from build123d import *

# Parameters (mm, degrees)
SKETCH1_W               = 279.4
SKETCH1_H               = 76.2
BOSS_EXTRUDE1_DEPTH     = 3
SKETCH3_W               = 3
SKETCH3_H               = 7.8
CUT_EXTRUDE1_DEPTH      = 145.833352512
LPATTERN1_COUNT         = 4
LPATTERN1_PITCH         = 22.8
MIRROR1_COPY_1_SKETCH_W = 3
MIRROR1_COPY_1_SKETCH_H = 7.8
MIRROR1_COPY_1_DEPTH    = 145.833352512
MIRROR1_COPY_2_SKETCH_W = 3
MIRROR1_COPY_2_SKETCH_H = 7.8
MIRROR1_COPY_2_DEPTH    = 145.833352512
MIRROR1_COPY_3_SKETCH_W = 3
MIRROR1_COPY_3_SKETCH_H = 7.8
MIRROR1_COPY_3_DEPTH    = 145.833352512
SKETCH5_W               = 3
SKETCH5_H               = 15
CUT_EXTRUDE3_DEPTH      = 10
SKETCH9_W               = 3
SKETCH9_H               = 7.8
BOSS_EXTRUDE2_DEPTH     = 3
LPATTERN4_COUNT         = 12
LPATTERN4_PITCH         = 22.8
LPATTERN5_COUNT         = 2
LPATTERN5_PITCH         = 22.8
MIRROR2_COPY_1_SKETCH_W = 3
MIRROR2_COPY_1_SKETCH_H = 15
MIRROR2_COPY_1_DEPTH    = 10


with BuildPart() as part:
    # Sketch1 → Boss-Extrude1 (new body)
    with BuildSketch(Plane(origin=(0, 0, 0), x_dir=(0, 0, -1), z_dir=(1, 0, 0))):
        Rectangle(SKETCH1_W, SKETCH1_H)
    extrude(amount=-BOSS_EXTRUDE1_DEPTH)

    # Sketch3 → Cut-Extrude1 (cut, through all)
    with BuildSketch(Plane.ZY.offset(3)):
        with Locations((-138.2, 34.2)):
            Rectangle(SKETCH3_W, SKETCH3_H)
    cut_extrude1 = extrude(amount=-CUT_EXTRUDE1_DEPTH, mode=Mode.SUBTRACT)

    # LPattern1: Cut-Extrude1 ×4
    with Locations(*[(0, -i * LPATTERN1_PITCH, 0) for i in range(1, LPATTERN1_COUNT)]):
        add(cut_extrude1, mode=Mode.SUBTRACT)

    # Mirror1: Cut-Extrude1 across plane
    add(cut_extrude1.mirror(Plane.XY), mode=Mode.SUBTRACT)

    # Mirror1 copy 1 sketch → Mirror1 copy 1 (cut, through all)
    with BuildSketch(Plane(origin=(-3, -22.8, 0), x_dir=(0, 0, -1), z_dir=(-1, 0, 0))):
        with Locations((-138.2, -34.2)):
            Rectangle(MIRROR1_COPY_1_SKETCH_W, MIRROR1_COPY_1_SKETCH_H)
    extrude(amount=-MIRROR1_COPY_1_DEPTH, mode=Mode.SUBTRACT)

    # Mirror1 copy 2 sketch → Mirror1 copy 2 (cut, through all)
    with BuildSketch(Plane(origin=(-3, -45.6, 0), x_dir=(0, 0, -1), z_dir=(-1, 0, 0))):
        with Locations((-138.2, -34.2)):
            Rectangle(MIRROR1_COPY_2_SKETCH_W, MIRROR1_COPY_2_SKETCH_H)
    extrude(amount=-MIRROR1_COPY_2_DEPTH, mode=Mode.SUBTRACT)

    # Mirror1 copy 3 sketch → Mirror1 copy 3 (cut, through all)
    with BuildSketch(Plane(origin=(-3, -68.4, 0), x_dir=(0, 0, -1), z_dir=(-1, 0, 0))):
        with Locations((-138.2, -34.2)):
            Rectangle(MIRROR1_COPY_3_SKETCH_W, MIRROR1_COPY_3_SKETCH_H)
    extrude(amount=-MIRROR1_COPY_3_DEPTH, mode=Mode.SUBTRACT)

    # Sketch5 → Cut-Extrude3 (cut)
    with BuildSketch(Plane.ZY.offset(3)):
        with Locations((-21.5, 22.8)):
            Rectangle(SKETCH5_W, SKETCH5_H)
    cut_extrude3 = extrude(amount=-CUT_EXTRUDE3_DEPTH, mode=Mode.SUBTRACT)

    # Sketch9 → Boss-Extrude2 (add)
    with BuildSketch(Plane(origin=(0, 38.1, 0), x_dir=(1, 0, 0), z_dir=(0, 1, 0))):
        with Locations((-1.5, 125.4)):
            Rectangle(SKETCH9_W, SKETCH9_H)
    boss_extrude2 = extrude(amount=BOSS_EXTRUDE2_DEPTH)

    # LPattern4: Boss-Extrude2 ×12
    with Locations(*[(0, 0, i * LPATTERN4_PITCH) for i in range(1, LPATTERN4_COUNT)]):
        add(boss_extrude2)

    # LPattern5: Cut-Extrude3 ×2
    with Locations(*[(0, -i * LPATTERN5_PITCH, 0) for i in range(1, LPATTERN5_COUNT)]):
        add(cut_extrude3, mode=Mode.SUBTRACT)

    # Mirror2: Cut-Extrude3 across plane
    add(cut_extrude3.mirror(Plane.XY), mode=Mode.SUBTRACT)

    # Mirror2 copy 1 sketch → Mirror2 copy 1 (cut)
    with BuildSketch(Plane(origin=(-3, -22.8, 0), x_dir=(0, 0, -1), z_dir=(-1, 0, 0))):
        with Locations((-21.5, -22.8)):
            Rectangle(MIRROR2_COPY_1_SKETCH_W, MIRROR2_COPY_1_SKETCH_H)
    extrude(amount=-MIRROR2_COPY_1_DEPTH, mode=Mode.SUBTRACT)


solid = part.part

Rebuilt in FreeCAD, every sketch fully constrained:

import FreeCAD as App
import Part
import Sketcher

V = App.Vector


def add_polygon(sketch, points):
    """Adds a closed chain of lines whose ends are joined by coincident constraints."""
    first, n = sketch.GeometryCount, len(points)
    for a, b in zip(points, points[1:] + points[:1]):
        sketch.addGeometry(Part.LineSegment(App.Vector(*a, 0), App.Vector(*b, 0)), False)
    for i in range(n):
        sketch.addConstraint(Sketcher.Constraint("Coincident", first + i, 2, first + (i + 1) % n, 1))

doc = App.newDocument("Part")
params = doc.addObject("Spreadsheet::Sheet", "Params")
for row, (alias, value) in enumerate([
    ("sketch1_width", "76.2 mm"),
    ("sketch1_height", "279.4 mm"),
    ("pad1_length", "3 mm"),
    ("sketch2_height", "3 mm"),
    ("sketch2_width", "7.8 mm"),
    ("linearpattern_pitch", "22.8 mm"),
    ("sketch3_height", "3 mm"),
    ("sketch3_width", "7.8 mm"),
    ("sketch4_height", "3 mm"),
    ("sketch4_width", "7.8 mm"),
    ("sketch5_height", "3 mm"),
    ("sketch5_width", "7.8 mm"),
    ("sketch6_width", "15 mm"),
    ("sketch6_height", "3 mm"),
    ("pocket5_length", "10 mm"),
    ("sketch7_width", "3 mm"),
    ("sketch7_height", "7.8 mm"),
    ("pad2_length", "3 mm"),
    ("linearpattern2_pitch", "22.8 mm"),
    ("linearpattern3_pitch", "22.8 mm"),
    ("sketch8_width", "15 mm"),
    ("sketch8_height", "3 mm"),
    ("pocket6_length", "10 mm"),
], start=1):
    params.set(f"A{row}", alias)
    params.set(f"B{row}", "=" + value)
    params.setAlias(f"B{row}", alias)

body = doc.addObject("PartDesign::Body", "Body")

# Sketch on YZ plane
sketch1 = doc.addObject("Sketcher::SketchObject", "Sketch")
body.addObject(sketch1)
sketch1.AttachmentSupport = (doc.YZ_Plane, [""])
sketch1.MapMode = "FlatFace"
add_polygon(sketch1, [(38, 140), (-38, 140), (-38, -140), (38, -140)])  # lines 0-3
sketch1.addConstraint(Sketcher.Constraint("Horizontal", 0))
sketch1.addConstraint(Sketcher.Constraint("Vertical", 1))
sketch1.addConstraint(Sketcher.Constraint("Horizontal", 2))
sketch1.addConstraint(Sketcher.Constraint("Vertical", 3))
sketch1.addConstraint(Sketcher.Constraint("Symmetric", 0, 2, 2, 2, -1, 1))
sketch1.addConstraint(Sketcher.Constraint("DistanceX", 0, 2, 0, 1, 76.2))
sketch1.addConstraint(Sketcher.Constraint("DistanceY", 1, 2, 1, 1, 279.4))
sketch1.setExpression("Constraints[9]", "Params.sketch1_width")
sketch1.setExpression("Constraints[10]", "Params.sketch1_height")
pad1 = doc.addObject("PartDesign::Pad", "Pad")
body.addObject(pad1)
pad1.Profile = sketch1
pad1.setExpression("Length", "Params.pad1_length")
pad1.Reversed = True

# Sketch on YZ plane
sketch2 = doc.addObject("Sketcher::SketchObject", "Sketch001")
body.addObject(sketch2)
sketch2.AttachmentSupport = (doc.YZ_Plane, [""])
sketch2.MapMode = "FlatFace"
sketch2.AttachmentOffset = App.Placement(V(0, 0, -3), App.Rotation())
add_polygon(sketch2, [(38.1, -139.7), (30.3, -139.7), (30.3, -136.7), (38.1, -136.7)])  # lines 0-3
sketch2.addConstraint(Sketcher.Constraint("Horizontal", 0))
sketch2.addConstraint(Sketcher.Constraint("Vertical", 1))
sketch2.addConstraint(Sketcher.Constraint("Horizontal", 2))
sketch2.addConstraint(Sketcher.Constraint("Vertical", 3))
sketch2.addConstraint(Sketcher.Constraint("DistanceY", 1, 1, 1, 2, 3.0))
sketch2.addConstraint(Sketcher.Constraint("DistanceX", 0, 2, 0, 1, 7.8))
sketch2.addConstraint(Sketcher.Constraint("DistanceX", -1, 1, 0, 2, 30.3))
sketch2.addConstraint(Sketcher.Constraint("DistanceY", 0, 2, -1, 1, 139.7))
sketch2.setExpression("Constraints[8]", "Params.sketch2_height")
sketch2.setExpression("Constraints[9]", "Params.sketch2_width")
pocket1 = doc.addObject("PartDesign::Pocket", "Pocket")
body.addObject(pocket1)
pocket1.Profile = sketch2
pocket1.Type = "ThroughAll"
pocket1.Reversed = True
doc.recompute()

linearpattern = doc.addObject("PartDesign::LinearPattern", "LinearPattern")
body.addObject(linearpattern)
linearpattern.Originals = [pocket1]
linearpattern.Direction = (doc.Y_Axis, [""])
linearpattern.Mode = "offset"
linearpattern.setExpression("Offset", "Params.linearpattern_pitch")
linearpattern.Occurrences = 4
linearpattern.Reversed = True
body.Tip = linearpattern
doc.recompute()

mirrored = doc.addObject("PartDesign::Mirrored", "Mirrored")
body.addObject(mirrored)
mirrored.Originals = [pocket1]
mirrored.MirrorPlane = (doc.XY_Plane, [""])
body.Tip = mirrored

# Sketch on YZ plane
sketch3 = doc.addObject("Sketcher::SketchObject", "Sketch002")
body.addObject(sketch3)
sketch3.AttachmentSupport = (doc.YZ_Plane, [""])
sketch3.MapMode = "FlatFace"
sketch3.AttachmentOffset = App.Placement(V(0, 0, -3), App.Rotation())
add_polygon(sketch3, [(7.5, 139.7), (15.3, 139.7), (15.3, 136.7), (7.5, 136.7)])  # lines 0-3
sketch3.addConstraint(Sketcher.Constraint("Horizontal", 0))
sketch3.addConstraint(Sketcher.Constraint("Vertical", 1))
sketch3.addConstraint(Sketcher.Constraint("Horizontal", 2))
sketch3.addConstraint(Sketcher.Constraint("Vertical", 3))
sketch3.addConstraint(Sketcher.Constraint("DistanceY", 1, 2, 1, 1, 3.0))
sketch3.addConstraint(Sketcher.Constraint("DistanceX", 0, 1, 0, 2, 7.8))
sketch3.addConstraint(Sketcher.Constraint("DistanceX", -1, 1, 0, 2, 15.3))
sketch3.addConstraint(Sketcher.Constraint("DistanceY", -1, 1, 0, 2, 139.7))
sketch3.setExpression("Constraints[8]", "Params.sketch3_height")
sketch3.setExpression("Constraints[9]", "Params.sketch3_width")
pocket2 = doc.addObject("PartDesign::Pocket", "Pocket001")
body.addObject(pocket2)
pocket2.Profile = sketch3
pocket2.Type = "ThroughAll"
pocket2.Reversed = True

# Sketch on YZ plane
sketch4 = doc.addObject("Sketcher::SketchObject", "Sketch003")
body.addObject(sketch4)
sketch4.AttachmentSupport = (doc.YZ_Plane, [""])
sketch4.MapMode = "FlatFace"
sketch4.AttachmentOffset = App.Placement(V(0, 0, -3), App.Rotation())
add_polygon(sketch4, [(-15.3, 139.7), (-7.5, 139.7), (-7.5, 136.7), (-15.3, 136.7)])  # lines 0-3
sketch4.addConstraint(Sketcher.Constraint("Horizontal", 0))
sketch4.addConstraint(Sketcher.Constraint("Vertical", 1))
sketch4.addConstraint(Sketcher.Constraint("Horizontal", 2))
sketch4.addConstraint(Sketcher.Constraint("Vertical", 3))
sketch4.addConstraint(Sketcher.Constraint("DistanceY", 1, 2, 1, 1, 3.0))
sketch4.addConstraint(Sketcher.Constraint("DistanceX", 0, 1, 0, 2, 7.8))
sketch4.addConstraint(Sketcher.Constraint("DistanceX", 0, 2, -1, 1, 7.5))
sketch4.addConstraint(Sketcher.Constraint("DistanceY", -1, 1, 0, 2, 139.7))
sketch4.setExpression("Constraints[8]", "Params.sketch4_height")
sketch4.setExpression("Constraints[9]", "Params.sketch4_width")
pocket3 = doc.addObject("PartDesign::Pocket", "Pocket002")
body.addObject(pocket3)
pocket3.Profile = sketch4
pocket3.Type = "ThroughAll"
pocket3.Reversed = True

# Sketch on YZ plane
sketch5 = doc.addObject("Sketcher::SketchObject", "Sketch004")
body.addObject(sketch5)
sketch5.AttachmentSupport = (doc.YZ_Plane, [""])
sketch5.MapMode = "FlatFace"
sketch5.AttachmentOffset = App.Placement(V(0, 0, -3), App.Rotation())
add_polygon(sketch5, [(-38.1, 139.7), (-30.3, 139.7), (-30.3, 136.7), (-38.1, 136.7)])  # lines 0-3
sketch5.addConstraint(Sketcher.Constraint("Horizontal", 0))
sketch5.addConstraint(Sketcher.Constraint("Vertical", 1))
sketch5.addConstraint(Sketcher.Constraint("Horizontal", 2))
sketch5.addConstraint(Sketcher.Constraint("Vertical", 3))
sketch5.addConstraint(Sketcher.Constraint("DistanceY", 1, 2, 1, 1, 3.0))
sketch5.addConstraint(Sketcher.Constraint("DistanceX", 0, 1, 0, 2, 7.8))
sketch5.addConstraint(Sketcher.Constraint("DistanceX", 0, 2, -1, 1, 30.3))
sketch5.addConstraint(Sketcher.Constraint("DistanceY", -1, 1, 0, 2, 139.7))
sketch5.setExpression("Constraints[8]", "Params.sketch5_height")
sketch5.setExpression("Constraints[9]", "Params.sketch5_width")
pocket4 = doc.addObject("PartDesign::Pocket", "Pocket003")
body.addObject(pocket4)
pocket4.Profile = sketch5
pocket4.Type = "ThroughAll"
pocket4.Reversed = True

# Sketch on YZ plane
sketch6 = doc.addObject("Sketcher::SketchObject", "Sketch005")
body.addObject(sketch6)
sketch6.AttachmentSupport = (doc.YZ_Plane, [""])
sketch6.MapMode = "FlatFace"
sketch6.AttachmentOffset = App.Placement(V(0, 0, -3), App.Rotation())
add_polygon(sketch6, [(30.3, -23), (15.3, -23), (15.3, -20), (30.3, -20)])  # lines 0-3
sketch6.addConstraint(Sketcher.Constraint("Horizontal", 0))
sketch6.addConstraint(Sketcher.Constraint("Vertical", 1))
sketch6.addConstraint(Sketcher.Constraint("Horizontal", 2))
sketch6.addConstraint(Sketcher.Constraint("Vertical", 3))
sketch6.addConstraint(Sketcher.Constraint("DistanceX", 0, 2, 0, 1, 15.0))
sketch6.addConstraint(Sketcher.Constraint("DistanceY", 1, 1, 1, 2, 3.0))
sketch6.addConstraint(Sketcher.Constraint("DistanceY", 0, 2, -1, 1, 23.0))
sketch6.addConstraint(Sketcher.Constraint("DistanceX", -1, 1, 0, 2, 15.3))
sketch6.setExpression("Constraints[8]", "Params.sketch6_width")
sketch6.setExpression("Constraints[9]", "Params.sketch6_height")
pocket5 = doc.addObject("PartDesign::Pocket", "Pocket004")
body.addObject(pocket5)
pocket5.Profile = sketch6
pocket5.setExpression("Length", "Params.pocket5_length")
pocket5.Reversed = True

# Sketch on XZ plane
sketch7 = doc.addObject("Sketcher::SketchObject", "Sketch006")
body.addObject(sketch7)
sketch7.AttachmentSupport = (doc.XZ_Plane, [""])
sketch7.MapMode = "FlatFace"
sketch7.AttachmentOffset = App.Placement(V(0, 0, -38.1), App.Rotation())
add_polygon(sketch7, [(-3, -129.3), (-3, -121.5), (0, -121.5), (0, -129.3)])  # lines 0-3
sketch7.addConstraint(Sketcher.Constraint("Vertical", 0))
sketch7.addConstraint(Sketcher.Constraint("Horizontal", 1))
sketch7.addConstraint(Sketcher.Constraint("Vertical", 2))
sketch7.addConstraint(Sketcher.Constraint("Horizontal", 3))
sketch7.addConstraint(Sketcher.Constraint("PointOnObject", 1, 2, -2))
sketch7.addConstraint(Sketcher.Constraint("DistanceX", 1, 1, 1, 2, 3.0))
sketch7.addConstraint(Sketcher.Constraint("DistanceY", 0, 1, 0, 2, 7.8))
sketch7.addConstraint(Sketcher.Constraint("DistanceY", 0, 2, -1, 1, 121.5))
sketch7.setExpression("Constraints[9]", "Params.sketch7_width")
sketch7.setExpression("Constraints[10]", "Params.sketch7_height")
pad2 = doc.addObject("PartDesign::Pad", "Pad001")
body.addObject(pad2)
pad2.Profile = sketch7
pad2.setExpression("Length", "Params.pad2_length")
pad2.Reversed = True
doc.recompute()

linearpattern2 = doc.addObject("PartDesign::LinearPattern", "LinearPattern001")
body.addObject(linearpattern2)
linearpattern2.Originals = [pad2]
linearpattern2.Direction = (doc.Z_Axis, [""])
linearpattern2.Mode = "offset"
linearpattern2.setExpression("Offset", "Params.linearpattern2_pitch")
linearpattern2.Occurrences = 12
body.Tip = linearpattern2
doc.recompute()

linearpattern3 = doc.addObject("PartDesign::LinearPattern", "LinearPattern002")
body.addObject(linearpattern3)
linearpattern3.Originals = [pocket5]
linearpattern3.Direction = (doc.Y_Axis, [""])
linearpattern3.Mode = "offset"
linearpattern3.setExpression("Offset", "Params.linearpattern3_pitch")
linearpattern3.Occurrences = 2
linearpattern3.Reversed = True
body.Tip = linearpattern3
doc.recompute()

mirrored2 = doc.addObject("PartDesign::Mirrored", "Mirrored001")
body.addObject(mirrored2)
mirrored2.Originals = [pocket5]
mirrored2.MirrorPlane = (doc.XY_Plane, [""])
body.Tip = mirrored2

# Sketch on YZ plane
sketch8 = doc.addObject("Sketcher::SketchObject", "Sketch007")
body.addObject(sketch8)
sketch8.AttachmentSupport = (doc.YZ_Plane, [""])
sketch8.MapMode = "FlatFace"
sketch8.AttachmentOffset = App.Placement(V(0, 0, -3), App.Rotation())
add_polygon(sketch8, [(-7.5, 23), (7.5, 23), (7.5, 20), (-7.5, 20)])  # lines 0-3
sketch8.addConstraint(Sketcher.Constraint("Horizontal", 0))
sketch8.addConstraint(Sketcher.Constraint("Vertical", 1))
sketch8.addConstraint(Sketcher.Constraint("Horizontal", 2))
sketch8.addConstraint(Sketcher.Constraint("Vertical", 3))
sketch8.addConstraint(Sketcher.Constraint("DistanceX", 0, 1, 0, 2, 15.0))
sketch8.addConstraint(Sketcher.Constraint("DistanceY", 1, 2, 1, 1, 3.0))
sketch8.addConstraint(Sketcher.Constraint("DistanceY", -1, 1, 0, 2, 23.0))
sketch8.addConstraint(Sketcher.Constraint("DistanceX", -1, 1, 0, 2, 7.5))
sketch8.setExpression("Constraints[8]", "Params.sketch8_width")
sketch8.setExpression("Constraints[9]", "Params.sketch8_height")
pocket6 = doc.addObject("PartDesign::Pocket", "Pocket005")
body.addObject(pocket6)
pocket6.Profile = sketch8
pocket6.setExpression("Length", "Params.pocket6_length")
pocket6.Reversed = True

doc.recompute()
